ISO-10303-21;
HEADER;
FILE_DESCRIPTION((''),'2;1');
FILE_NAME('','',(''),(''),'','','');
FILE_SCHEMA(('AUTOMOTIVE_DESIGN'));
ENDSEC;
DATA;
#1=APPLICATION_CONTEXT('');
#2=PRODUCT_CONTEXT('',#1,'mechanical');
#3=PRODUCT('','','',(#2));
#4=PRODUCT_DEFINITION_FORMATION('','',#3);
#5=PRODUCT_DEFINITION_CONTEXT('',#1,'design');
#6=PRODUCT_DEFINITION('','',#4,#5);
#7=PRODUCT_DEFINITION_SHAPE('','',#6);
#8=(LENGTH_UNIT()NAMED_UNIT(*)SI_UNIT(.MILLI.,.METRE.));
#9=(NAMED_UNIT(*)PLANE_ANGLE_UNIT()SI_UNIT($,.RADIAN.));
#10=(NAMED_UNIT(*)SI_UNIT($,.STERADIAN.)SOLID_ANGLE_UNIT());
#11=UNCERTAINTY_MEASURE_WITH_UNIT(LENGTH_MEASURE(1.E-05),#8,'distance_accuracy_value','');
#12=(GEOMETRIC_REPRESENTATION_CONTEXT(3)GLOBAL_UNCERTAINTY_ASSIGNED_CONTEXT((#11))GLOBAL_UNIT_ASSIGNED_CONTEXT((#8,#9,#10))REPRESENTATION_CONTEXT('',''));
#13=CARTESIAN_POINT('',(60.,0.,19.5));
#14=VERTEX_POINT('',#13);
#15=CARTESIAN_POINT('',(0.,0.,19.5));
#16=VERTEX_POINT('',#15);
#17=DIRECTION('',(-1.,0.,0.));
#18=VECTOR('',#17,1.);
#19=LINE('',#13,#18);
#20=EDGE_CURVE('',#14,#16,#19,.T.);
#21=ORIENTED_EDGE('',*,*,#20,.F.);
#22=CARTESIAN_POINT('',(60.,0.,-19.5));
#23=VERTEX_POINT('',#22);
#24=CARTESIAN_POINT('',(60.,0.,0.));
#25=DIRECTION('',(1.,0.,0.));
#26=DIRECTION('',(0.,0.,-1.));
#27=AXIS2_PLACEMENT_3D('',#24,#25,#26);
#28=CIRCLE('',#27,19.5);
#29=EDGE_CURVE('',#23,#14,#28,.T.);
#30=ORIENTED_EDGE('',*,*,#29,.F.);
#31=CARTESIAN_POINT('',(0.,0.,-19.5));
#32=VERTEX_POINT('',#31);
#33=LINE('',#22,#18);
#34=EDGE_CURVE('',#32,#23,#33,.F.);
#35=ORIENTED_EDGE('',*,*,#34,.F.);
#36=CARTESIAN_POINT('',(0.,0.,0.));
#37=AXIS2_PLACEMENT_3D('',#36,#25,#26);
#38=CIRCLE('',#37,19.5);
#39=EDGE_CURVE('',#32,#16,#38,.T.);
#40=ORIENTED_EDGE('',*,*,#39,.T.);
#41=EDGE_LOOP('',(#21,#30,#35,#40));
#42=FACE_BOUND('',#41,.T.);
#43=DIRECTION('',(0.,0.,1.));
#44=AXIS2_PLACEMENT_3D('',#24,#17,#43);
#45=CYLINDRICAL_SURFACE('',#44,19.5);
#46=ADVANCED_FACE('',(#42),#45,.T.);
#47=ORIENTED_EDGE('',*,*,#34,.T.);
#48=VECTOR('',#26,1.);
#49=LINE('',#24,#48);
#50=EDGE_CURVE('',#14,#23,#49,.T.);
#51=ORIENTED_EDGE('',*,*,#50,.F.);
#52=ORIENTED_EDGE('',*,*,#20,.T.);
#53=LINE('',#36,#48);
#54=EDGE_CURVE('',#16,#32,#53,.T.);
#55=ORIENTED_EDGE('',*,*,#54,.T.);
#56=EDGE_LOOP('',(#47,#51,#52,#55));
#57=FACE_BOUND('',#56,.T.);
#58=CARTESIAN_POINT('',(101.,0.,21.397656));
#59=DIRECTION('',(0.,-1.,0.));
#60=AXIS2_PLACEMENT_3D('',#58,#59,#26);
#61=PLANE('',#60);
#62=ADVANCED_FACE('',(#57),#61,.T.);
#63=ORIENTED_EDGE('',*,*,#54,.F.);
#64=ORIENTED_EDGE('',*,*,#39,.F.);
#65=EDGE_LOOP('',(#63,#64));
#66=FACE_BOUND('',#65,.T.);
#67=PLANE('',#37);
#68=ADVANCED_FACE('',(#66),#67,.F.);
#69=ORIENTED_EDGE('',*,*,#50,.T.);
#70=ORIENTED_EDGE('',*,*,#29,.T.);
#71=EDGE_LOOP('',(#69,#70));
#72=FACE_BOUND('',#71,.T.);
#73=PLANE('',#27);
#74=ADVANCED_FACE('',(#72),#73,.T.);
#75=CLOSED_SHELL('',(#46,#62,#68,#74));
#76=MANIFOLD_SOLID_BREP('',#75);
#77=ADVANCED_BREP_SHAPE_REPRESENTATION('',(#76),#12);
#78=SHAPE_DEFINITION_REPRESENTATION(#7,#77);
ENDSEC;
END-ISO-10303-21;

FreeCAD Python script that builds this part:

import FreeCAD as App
import Part
import Sketcher


def add_polygon(sketch, points):
    """Adds a closed chain of lines whose ends are joined by coincident constraints."""
    first, n = sketch.GeometryCount, len(points)
    for a, b in zip(points, points[1:] + points[:1]):
        sketch.addGeometry(Part.LineSegment(App.Vector(*a, 0), App.Vector(*b, 0)), False)
    for i in range(n):
        sketch.addConstraint(Sketcher.Constraint("Coincident", first + i, 2, first + (i + 1) % n, 1))

doc = App.newDocument("Part")
body = doc.addObject("PartDesign::Body", "Body")

# Sketch on YZ plane
sketch1 = body.newObject("Sketcher::SketchObject", "Sketch")
sketch1.AttachmentSupport = (doc.getObject("YZ_Plane"), [""])
sketch1.MapMode = "FlatFace"
sketch1.addGeometry(Part.Circle(App.Vector(0, 0, 0), App.Vector(0, 0, 1), 20), False)
sketch1.addConstraint([
    Sketcher.Constraint("Coincident", 0, 3, -1, 1),
    Sketcher.Constraint("Diameter", 0, 39.0),
])
pad1 = body.newObject("PartDesign::Pad", "Pad")
pad1.Profile = sketch1
pad1.Length = 60

# Sketch on YZ plane
sketch2 = body.newObject("Sketcher::SketchObject", "Sketch001")
sketch2.AttachmentSupport = (doc.getObject("YZ_Plane"), [""])
sketch2.MapMode = "FlatFace"
add_polygon(sketch2, [(0, 21), (-23, 21), (-23, -21), (0, -21)])  # lines 0-3
sketch2.addConstraint([
    Sketcher.Constraint("Horizontal", 0),
    Sketcher.Constraint("Vertical", 1),
    Sketcher.Constraint("Horizontal", 2),
    Sketcher.Constraint("Vertical", 3),
    Sketcher.Constraint("PointOnObject", 2, 2, -2),
    Sketcher.Constraint("DistanceY", 1, 2, 1, 1, 42.862812),
    Sketcher.Constraint("DistanceX", 0, 2, 0, 1, 22.916417),
    Sketcher.Constraint("DistanceY", -1, 1, 0, 2, 21.397656),
])
pocket1 = body.newObject("PartDesign::Pocket", "Pocket")
pocket1.Profile = sketch2
pocket1.Length = 101
pocket1.Reversed = True

doc.recompute()
